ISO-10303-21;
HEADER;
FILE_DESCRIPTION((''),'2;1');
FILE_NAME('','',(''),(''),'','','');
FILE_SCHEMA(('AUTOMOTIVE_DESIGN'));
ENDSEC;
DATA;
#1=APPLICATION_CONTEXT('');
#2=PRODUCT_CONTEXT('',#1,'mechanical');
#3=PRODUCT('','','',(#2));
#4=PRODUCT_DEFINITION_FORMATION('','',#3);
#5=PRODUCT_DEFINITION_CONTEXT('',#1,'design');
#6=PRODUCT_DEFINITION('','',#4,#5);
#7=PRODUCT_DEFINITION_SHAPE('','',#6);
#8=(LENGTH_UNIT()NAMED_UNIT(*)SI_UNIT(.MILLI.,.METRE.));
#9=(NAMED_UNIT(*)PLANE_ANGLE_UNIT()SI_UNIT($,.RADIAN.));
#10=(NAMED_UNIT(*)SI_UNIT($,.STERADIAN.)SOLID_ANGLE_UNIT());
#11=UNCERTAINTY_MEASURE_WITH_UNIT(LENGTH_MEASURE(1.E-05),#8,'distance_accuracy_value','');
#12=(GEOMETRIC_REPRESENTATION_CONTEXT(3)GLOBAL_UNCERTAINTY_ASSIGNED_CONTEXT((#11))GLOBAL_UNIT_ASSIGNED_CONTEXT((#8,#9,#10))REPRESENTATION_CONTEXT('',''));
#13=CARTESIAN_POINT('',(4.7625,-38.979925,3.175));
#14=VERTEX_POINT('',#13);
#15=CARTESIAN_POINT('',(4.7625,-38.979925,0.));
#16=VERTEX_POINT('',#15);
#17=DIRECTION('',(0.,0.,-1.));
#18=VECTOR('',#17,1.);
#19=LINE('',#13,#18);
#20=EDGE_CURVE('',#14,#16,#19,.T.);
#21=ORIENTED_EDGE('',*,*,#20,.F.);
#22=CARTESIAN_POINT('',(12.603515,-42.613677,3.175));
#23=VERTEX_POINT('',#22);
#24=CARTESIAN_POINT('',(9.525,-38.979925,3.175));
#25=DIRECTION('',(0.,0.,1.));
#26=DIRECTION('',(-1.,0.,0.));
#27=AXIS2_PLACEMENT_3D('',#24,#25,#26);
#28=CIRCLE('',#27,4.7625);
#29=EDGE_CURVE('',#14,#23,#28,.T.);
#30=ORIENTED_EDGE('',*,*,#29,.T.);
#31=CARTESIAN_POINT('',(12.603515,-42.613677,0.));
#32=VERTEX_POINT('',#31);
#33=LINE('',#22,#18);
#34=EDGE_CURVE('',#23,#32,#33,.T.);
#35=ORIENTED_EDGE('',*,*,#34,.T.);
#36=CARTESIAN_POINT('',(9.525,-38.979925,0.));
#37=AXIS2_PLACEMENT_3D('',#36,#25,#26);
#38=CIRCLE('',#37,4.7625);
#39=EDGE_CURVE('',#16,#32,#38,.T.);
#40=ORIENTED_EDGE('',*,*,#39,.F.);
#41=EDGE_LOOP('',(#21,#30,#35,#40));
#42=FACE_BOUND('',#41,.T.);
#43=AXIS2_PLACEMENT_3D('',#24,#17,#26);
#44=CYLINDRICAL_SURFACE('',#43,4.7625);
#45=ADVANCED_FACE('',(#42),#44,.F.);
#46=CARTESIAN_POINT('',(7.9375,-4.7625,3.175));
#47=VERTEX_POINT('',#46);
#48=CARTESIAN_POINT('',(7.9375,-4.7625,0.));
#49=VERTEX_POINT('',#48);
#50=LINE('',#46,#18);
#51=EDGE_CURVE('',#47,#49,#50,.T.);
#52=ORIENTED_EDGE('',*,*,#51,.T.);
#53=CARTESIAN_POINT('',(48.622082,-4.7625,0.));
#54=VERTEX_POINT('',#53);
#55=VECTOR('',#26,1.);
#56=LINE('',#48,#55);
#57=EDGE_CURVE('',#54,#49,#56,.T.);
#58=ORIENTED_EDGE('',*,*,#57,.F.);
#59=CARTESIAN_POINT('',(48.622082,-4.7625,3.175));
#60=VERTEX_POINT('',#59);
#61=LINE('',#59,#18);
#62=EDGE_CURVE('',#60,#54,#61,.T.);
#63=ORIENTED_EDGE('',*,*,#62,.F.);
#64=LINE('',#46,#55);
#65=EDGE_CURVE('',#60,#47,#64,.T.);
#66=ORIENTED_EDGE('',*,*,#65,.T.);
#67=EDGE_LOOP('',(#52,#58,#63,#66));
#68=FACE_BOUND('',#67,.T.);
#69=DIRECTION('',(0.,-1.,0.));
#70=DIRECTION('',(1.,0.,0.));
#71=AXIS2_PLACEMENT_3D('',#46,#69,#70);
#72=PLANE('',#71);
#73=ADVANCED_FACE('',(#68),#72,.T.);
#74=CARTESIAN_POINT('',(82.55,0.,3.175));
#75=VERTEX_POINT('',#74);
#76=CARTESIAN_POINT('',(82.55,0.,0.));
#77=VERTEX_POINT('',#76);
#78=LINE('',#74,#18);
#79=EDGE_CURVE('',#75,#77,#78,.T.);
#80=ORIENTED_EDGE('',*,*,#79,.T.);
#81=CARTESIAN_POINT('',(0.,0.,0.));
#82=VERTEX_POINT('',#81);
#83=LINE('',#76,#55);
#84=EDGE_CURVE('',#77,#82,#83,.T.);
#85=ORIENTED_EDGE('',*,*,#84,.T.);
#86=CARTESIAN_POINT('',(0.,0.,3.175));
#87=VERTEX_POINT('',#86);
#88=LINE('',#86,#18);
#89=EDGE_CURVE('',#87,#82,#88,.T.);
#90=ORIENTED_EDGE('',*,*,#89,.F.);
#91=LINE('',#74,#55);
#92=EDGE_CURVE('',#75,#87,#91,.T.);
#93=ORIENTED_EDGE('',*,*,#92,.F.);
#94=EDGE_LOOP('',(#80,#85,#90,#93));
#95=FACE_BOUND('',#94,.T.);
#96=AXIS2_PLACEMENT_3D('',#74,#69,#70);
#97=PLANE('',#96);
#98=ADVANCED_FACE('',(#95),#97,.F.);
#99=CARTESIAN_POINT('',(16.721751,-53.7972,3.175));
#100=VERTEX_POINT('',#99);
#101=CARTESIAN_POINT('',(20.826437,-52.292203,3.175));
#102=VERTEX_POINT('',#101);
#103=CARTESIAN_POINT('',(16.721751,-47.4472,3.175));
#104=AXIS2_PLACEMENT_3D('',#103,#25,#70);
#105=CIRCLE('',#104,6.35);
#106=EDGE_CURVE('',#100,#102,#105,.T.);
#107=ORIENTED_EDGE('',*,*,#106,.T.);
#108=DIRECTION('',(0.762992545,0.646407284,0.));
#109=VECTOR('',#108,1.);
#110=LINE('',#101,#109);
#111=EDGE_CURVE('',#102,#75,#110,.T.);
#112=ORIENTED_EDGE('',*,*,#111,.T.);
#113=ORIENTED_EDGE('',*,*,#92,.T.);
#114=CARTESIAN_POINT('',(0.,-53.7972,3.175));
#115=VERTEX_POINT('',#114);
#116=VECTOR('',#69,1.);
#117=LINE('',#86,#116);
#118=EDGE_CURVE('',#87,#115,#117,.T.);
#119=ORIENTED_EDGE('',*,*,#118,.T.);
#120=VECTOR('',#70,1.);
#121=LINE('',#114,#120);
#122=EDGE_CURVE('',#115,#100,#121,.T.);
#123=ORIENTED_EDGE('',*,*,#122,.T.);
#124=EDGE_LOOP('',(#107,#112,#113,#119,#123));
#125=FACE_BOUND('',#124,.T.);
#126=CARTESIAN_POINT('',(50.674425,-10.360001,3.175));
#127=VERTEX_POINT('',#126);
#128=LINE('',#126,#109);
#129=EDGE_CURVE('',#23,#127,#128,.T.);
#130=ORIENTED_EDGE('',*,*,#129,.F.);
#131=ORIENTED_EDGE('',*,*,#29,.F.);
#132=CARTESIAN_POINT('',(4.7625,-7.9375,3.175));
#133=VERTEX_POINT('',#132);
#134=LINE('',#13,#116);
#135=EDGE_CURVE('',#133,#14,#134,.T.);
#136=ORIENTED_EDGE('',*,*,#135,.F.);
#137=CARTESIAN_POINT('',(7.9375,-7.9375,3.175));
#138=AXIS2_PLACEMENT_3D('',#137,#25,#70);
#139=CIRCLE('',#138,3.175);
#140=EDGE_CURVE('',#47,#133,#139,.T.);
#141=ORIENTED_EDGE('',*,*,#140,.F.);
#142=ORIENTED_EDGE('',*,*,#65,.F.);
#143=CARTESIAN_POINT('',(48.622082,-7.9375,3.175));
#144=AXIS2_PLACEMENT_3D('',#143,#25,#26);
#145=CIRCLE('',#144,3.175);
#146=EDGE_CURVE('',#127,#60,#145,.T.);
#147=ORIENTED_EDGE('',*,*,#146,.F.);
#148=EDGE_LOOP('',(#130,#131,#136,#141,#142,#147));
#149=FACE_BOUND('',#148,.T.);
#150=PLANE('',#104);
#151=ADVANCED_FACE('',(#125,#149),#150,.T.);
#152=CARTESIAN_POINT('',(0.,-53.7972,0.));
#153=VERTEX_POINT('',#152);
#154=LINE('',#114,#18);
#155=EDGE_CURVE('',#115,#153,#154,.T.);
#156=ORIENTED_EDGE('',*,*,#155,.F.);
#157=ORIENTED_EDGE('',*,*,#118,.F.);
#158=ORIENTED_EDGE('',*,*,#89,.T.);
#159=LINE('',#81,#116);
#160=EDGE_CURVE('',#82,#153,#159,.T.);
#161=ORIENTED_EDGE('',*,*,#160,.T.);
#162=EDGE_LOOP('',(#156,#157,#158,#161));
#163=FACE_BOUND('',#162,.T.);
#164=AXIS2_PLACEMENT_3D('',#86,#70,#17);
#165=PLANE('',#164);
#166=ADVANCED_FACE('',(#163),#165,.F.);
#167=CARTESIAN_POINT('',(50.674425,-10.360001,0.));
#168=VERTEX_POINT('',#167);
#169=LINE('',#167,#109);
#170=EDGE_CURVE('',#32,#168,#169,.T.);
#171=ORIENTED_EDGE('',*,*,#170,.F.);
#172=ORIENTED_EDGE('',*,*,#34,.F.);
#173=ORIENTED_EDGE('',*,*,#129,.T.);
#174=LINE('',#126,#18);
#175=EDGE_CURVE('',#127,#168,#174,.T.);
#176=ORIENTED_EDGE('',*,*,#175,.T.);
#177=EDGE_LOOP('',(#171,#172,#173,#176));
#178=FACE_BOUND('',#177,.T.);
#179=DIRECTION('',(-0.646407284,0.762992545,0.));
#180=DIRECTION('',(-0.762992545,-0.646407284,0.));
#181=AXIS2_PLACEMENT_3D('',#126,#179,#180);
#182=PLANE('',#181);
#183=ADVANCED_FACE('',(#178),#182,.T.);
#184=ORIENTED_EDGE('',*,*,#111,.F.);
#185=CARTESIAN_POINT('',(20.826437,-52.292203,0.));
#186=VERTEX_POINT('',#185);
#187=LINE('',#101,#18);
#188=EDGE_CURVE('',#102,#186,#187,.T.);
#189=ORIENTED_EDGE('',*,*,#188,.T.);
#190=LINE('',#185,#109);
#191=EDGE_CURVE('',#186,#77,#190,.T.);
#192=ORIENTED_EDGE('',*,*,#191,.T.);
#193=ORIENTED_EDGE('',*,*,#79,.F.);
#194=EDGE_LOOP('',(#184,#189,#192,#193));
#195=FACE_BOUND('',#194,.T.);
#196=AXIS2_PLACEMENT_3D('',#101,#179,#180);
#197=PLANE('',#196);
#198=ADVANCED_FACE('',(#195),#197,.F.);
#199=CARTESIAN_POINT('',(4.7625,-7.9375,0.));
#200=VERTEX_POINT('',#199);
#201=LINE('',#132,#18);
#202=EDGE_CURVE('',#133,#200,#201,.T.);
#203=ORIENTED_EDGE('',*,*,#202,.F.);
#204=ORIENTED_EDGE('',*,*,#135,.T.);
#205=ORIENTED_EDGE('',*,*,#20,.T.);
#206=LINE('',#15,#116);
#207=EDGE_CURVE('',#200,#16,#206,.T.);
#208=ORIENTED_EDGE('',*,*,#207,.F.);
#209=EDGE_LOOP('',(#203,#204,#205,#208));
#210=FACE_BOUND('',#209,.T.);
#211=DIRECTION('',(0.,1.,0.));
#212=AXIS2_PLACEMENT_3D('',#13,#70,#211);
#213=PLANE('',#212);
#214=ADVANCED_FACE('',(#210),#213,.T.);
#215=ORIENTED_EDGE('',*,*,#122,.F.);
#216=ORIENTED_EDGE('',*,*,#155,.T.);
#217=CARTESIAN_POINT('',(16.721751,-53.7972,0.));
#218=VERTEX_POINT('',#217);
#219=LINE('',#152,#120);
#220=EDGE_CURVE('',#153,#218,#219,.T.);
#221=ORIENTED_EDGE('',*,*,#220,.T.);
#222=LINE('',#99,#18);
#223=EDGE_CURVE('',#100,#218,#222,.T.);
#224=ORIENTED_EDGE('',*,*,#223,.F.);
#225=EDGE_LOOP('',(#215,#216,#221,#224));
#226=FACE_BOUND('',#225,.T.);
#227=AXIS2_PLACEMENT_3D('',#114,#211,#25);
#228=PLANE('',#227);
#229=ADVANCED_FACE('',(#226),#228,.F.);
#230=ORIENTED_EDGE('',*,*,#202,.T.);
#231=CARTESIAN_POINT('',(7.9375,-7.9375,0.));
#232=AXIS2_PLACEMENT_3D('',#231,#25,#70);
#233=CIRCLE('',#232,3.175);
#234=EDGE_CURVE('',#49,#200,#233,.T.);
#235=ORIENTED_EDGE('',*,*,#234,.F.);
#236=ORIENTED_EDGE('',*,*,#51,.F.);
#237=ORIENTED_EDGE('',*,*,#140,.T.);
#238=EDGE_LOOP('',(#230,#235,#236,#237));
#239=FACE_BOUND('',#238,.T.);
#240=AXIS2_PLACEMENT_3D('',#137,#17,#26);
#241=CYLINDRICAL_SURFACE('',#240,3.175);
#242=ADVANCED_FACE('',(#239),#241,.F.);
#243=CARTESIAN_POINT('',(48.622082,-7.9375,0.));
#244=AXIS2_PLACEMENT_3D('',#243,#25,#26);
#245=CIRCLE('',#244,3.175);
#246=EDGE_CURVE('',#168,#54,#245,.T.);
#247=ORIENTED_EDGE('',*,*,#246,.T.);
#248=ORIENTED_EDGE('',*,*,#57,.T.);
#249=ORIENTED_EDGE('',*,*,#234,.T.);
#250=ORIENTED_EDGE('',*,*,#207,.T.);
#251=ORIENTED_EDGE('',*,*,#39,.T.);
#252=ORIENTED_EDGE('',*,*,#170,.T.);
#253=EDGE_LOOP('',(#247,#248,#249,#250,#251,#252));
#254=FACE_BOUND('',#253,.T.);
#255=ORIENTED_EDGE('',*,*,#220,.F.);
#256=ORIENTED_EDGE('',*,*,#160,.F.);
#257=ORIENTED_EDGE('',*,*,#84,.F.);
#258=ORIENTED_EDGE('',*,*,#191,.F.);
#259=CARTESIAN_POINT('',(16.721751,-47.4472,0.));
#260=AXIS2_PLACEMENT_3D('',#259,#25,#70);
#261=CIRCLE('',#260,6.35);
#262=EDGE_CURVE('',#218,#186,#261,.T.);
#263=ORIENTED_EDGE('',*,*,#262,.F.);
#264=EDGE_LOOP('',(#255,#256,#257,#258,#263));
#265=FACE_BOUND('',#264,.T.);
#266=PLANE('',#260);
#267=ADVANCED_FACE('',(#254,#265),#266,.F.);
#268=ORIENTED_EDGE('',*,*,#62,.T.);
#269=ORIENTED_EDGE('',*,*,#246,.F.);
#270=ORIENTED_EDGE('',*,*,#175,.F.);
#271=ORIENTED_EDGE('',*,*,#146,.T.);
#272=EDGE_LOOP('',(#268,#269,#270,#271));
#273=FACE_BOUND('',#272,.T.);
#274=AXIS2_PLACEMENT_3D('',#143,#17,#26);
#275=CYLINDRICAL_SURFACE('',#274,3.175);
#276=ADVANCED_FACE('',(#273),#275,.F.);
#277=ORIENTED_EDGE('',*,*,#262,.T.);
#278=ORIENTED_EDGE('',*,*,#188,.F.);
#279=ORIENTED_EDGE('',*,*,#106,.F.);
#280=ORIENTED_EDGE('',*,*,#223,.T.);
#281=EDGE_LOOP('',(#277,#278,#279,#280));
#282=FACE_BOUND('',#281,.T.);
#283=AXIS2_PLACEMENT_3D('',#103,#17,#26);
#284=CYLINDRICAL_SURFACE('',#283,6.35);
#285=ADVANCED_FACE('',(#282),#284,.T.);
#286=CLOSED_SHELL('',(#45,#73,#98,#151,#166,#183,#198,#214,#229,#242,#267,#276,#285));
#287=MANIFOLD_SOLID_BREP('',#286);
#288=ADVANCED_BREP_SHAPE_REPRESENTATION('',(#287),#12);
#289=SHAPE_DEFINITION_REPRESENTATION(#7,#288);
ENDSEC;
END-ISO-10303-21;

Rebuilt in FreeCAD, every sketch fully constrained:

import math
import FreeCAD as App
import Part
import Sketcher

V = App.Vector
Q = App.Units.Quantity

doc = App.newDocument("Part")
body = doc.addObject("PartDesign::Body", "Body")

sketch1 = body.newObject("Sketcher::SketchObject", "Sketch")
sketch1.AttachmentSupport = (doc.getObject("XY_Plane"), [""])
sketch1.MapMode = "FlatFace"
sketch1.addGeometry(Part.LineSegment(V(0, 0, 0), V(0, -53.7972, 0)), False)
sketch1.addGeometry(Part.LineSegment(V(0, -53.7972, 0), V(16.721751, -53.7972, 0)), False)
sketch1.addGeometry(Part.ArcOfCircle(Part.Circle(V(16.721751, -47.4472, 0), V(0, 0, 1), 6.35), math.radians(-90), math.radians(-49.728729)), False)
sketch1.addGeometry(Part.LineSegment(V(20.826437, -52.292203, 0), V(82.55, 0, 0)), False)
sketch1.addGeometry(Part.LineSegment(V(82.55, 0, 0), V(0, 0, 0)), False)
sketch1.addGeometry(Part.ArcOfCircle(Part.Circle(V(7.9375, -7.9375, 0), V(0, 0, 1), 3.175), math.radians(90), math.radians(180)), False)
sketch1.addGeometry(Part.LineSegment(V(7.9375, -4.7625, 0), V(48.622082, -4.7625, 0)), False)
sketch1.addGeometry(Part.ArcOfCircle(Part.Circle(V(48.622082, -7.9375, 0), V(0, 0, 1), 3.175), math.radians(-49.728729), math.radians(90)), False)
sketch1.addGeometry(Part.LineSegment(V(50.674425, -10.360001, 0), V(12.603515, -42.613677, 0)), False)
sketch1.addGeometry(Part.ArcOfCircle(Part.Circle(V(9.525, -38.979925, 0), V(0, 0, 1), 4.7625), math.radians(180), math.radians(310.271271)), False)
sketch1.addGeometry(Part.LineSegment(V(4.7625, -38.979925, 0), V(4.7625, -7.9375, 0)), False)
sketch1.addConstraint(Sketcher.Constraint("Coincident", 0, 2, 1, 1))
sketch1.addConstraint(Sketcher.Constraint("Tangent", 1, 2, 2, 1))
sketch1.addConstraint(Sketcher.Constraint("Tangent", 2, 2, 3, 1))
sketch1.addConstraint(Sketcher.Constraint("Coincident", 3, 2, 4, 1))
sketch1.addConstraint(Sketcher.Constraint("Coincident", 4, 2, 0, 1))
sketch1.addConstraint(Sketcher.Constraint("Tangent", 5, 1, 6, 1))
sketch1.addConstraint(Sketcher.Constraint("Tangent", 6, 2, 7, 2))
sketch1.addConstraint(Sketcher.Constraint("Tangent", 7, 1, 8, 1))
sketch1.addConstraint(Sketcher.Constraint("Tangent", 8, 2, 9, 2))
sketch1.addConstraint(Sketcher.Constraint("Tangent", 9, 1, 10, 1))
sketch1.addConstraint(Sketcher.Constraint("Tangent", 10, 2, 5, 2))
sketch1.addConstraint(Sketcher.Constraint("Vertical", 0))
sketch1.addConstraint(Sketcher.Constraint("Horizontal", 1))
sketch1.addConstraint(Sketcher.Constraint("Horizontal", 4))
sketch1.addConstraint(Sketcher.Constraint("Horizontal", 6))
sketch1.addConstraint(Sketcher.Constraint("Vertical", 10))
sketch1.addConstraint(Sketcher.Constraint("Coincident", 4, 2, -1, 1))
sketch1.addConstraint(Sketcher.Constraint("Equal", 5, 7))
sketch1.addConstraint(Sketcher.Constraint("Parallel", 3, 8))
sketch1.addConstraint(Sketcher.Constraint("Radius", 2, Q("0.25 in")))
sketch1.addConstraint(Sketcher.Constraint("Radius", 5, Q("0.125 in")))
sketch1.addConstraint(Sketcher.Constraint("Radius", 9, Q("0.1875 in")))
sketch1.addConstraint(Sketcher.Constraint("DistanceX", 4, 2, 4, 1, Q("3.25 in")))
sketch1.addConstraint(Sketcher.Constraint("DistanceY", 0, 2, 0, 1, Q("2.118 in")))
sketch1.addConstraint(Sketcher.Constraint("DistanceX", -1, 1, 5, 3, Q("0.3125 in")))
sketch1.addConstraint(Sketcher.Constraint("DistanceY", 5, 3, -1, 1, Q("0.3125 in")))
sketch1.addConstraint(Sketcher.Constraint("DistanceX", 1, 1, 1, 2, Q("16.721751 mm")))
sketch1.addConstraint(Sketcher.Constraint("DistanceX", 6, 1, 6, 2, Q("40.684582 mm")))
pad1 = body.newObject("PartDesign::Pad", "Pad")
pad1.Profile = sketch1
pad1.Length = Q("0.125 in")

doc.recompute()
